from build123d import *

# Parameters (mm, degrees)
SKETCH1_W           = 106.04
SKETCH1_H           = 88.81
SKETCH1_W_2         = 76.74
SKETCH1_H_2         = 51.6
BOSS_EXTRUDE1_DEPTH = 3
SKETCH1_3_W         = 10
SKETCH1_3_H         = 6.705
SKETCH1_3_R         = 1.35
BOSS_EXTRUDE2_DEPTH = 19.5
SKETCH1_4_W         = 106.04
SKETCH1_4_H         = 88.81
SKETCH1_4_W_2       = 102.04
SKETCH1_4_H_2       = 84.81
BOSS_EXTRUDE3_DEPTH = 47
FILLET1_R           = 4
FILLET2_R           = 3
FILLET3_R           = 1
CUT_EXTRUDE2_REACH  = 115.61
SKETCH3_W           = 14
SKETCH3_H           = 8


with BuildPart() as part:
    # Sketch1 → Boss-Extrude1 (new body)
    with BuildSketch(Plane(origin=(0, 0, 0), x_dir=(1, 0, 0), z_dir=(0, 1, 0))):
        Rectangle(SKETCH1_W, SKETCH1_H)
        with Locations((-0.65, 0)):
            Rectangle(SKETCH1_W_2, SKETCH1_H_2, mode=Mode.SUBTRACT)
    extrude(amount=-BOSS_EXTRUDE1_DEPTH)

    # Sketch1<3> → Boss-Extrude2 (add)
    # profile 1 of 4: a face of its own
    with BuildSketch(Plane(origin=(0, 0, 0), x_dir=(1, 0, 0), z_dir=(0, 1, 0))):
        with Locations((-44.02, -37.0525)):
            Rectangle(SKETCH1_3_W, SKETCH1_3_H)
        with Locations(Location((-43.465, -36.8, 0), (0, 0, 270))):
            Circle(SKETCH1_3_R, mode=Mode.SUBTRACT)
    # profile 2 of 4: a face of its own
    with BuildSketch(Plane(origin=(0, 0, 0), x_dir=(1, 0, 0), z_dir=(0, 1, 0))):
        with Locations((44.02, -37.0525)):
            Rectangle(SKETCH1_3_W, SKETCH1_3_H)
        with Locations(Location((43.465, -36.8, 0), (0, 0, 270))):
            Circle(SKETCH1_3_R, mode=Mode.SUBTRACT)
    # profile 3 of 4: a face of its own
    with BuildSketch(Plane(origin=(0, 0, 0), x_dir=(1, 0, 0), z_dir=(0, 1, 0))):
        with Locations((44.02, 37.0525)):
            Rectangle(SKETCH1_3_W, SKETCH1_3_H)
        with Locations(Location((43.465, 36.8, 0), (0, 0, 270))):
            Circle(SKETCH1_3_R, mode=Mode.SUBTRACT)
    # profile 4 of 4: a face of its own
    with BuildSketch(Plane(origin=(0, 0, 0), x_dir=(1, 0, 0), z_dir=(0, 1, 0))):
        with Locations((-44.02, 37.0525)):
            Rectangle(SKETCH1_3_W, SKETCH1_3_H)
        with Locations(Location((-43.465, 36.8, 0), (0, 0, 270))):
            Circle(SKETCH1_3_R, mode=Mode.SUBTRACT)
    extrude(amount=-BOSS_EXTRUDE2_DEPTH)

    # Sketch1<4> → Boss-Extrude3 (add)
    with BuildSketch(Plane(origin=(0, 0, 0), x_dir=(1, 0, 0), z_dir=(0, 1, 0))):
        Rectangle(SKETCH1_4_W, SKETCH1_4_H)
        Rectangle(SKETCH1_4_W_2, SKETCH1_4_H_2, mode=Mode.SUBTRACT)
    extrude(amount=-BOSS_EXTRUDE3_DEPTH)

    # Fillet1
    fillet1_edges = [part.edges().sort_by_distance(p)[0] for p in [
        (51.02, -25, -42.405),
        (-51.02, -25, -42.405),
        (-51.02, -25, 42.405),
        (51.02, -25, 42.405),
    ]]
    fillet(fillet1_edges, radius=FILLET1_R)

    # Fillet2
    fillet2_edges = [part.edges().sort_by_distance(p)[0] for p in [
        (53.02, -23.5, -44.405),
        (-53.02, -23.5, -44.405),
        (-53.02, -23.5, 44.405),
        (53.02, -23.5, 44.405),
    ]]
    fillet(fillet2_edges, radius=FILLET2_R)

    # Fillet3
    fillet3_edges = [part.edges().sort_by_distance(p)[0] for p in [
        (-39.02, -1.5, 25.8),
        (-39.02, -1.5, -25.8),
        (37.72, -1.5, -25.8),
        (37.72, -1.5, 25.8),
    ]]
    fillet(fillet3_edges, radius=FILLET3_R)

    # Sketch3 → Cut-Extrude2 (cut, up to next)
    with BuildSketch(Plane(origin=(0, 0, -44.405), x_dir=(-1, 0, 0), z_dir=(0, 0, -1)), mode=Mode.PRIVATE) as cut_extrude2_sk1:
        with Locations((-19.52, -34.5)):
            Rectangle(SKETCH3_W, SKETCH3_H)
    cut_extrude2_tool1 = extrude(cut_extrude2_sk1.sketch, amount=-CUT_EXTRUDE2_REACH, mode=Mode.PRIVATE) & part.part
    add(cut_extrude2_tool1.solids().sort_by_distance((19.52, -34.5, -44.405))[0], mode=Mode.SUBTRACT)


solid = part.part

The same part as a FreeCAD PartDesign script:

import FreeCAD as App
import Part
import Sketcher

V = App.Vector
Q = App.Units.Quantity


def edges_at(feature, points):
    """Names of the edges that pass closest to the given points."""
    edges = feature.Shape.Edges
    near = lambda p: min(range(len(edges)), key=lambda i: edges[i].distToShape(Part.Vertex(*p))[0])
    return sorted({f"Edge{near(p) + 1}" for p in points})

doc = App.newDocument("Part")
body = doc.addObject("PartDesign::Body", "Body")

# Sketch on XZ plane
sketch1 = body.newObject("Sketcher::SketchObject", "Sketch")
sketch1.AttachmentSupport = (doc.getObject("XZ_Plane"), [""])
sketch1.MapMode = "FlatFace"
sketch1.addGeometry([
    Part.LineSegment(V(-53.02, -44.405, 0), V(-53.02, 44.405, 0)),  # 0
    Part.LineSegment(V(-53.02, 44.405, 0), V(53.02, 44.405, 0)),  # 1
    Part.LineSegment(V(53.02, 44.405, 0), V(53.02, -44.405, 0)),  # 2
    Part.LineSegment(V(53.02, -44.405, 0), V(-53.02, -44.405, 0)),  # 3
    Part.LineSegment(V(37.72, 25.8, 0), V(-39.02, 25.8, 0)),  # 4
    Part.LineSegment(V(-39.02, 25.8, 0), V(-39.02, -25.8, 0)),  # 5
    Part.LineSegment(V(-39.02, -25.8, 0), V(37.72, -25.8, 0)),  # 6
    Part.LineSegment(V(37.72, -25.8, 0), V(37.72, 25.8, 0)),  # 7
], False)
sketch1.addConstraint([
    Sketcher.Constraint("Coincident", 0, 2, 1, 1),
    Sketcher.Constraint("Coincident", 1, 2, 2, 1),
    Sketcher.Constraint("Coincident", 2, 2, 3, 1),
    Sketcher.Constraint("Coincident", 3, 2, 0, 1),
    Sketcher.Constraint("Coincident", 4, 2, 5, 1),
    Sketcher.Constraint("Coincident", 5, 2, 6, 1),
    Sketcher.Constraint("Coincident", 6, 2, 7, 1),
    Sketcher.Constraint("Coincident", 7, 2, 4, 1),
    Sketcher.Constraint("Vertical", 0),
    Sketcher.Constraint("Horizontal", 1),
    Sketcher.Constraint("Vertical", 2),
    Sketcher.Constraint("Horizontal", 3),
    Sketcher.Constraint("Horizontal", 4),
    Sketcher.Constraint("Vertical", 5),
    Sketcher.Constraint("Horizontal", 6),
    Sketcher.Constraint("Vertical", 7),
    Sketcher.Constraint("Symmetric", 0, 2, 2, 2, -1, 1),
    Sketcher.Constraint("DistanceY", 5, 2, 5, 1, Q("51.6 mm")),
    Sketcher.Constraint("DistanceX", 0, 2, 4, 2, Q("14 mm")),
    Sketcher.Constraint("DistanceX", 1, 1, 1, 2, Q("106.04 mm")),
    Sketcher.Constraint("DistanceX", 4, 2, 4, 1, Q("76.74 mm")),
    Sketcher.Constraint("DistanceY", 0, 1, 0, 2, Q("88.81 mm")),
    Sketcher.Constraint("DistanceY", -1, 1, 4, 2, Q("25.8 mm")),
])
pad1 = body.newObject("PartDesign::Pad", "Pad")
pad1.Profile = sketch1
pad1.Length = 3

# Sketch on XZ plane
sketch2 = body.newObject("Sketcher::SketchObject", "Sketch001")
sketch2.AttachmentSupport = (doc.getObject("XZ_Plane"), [""])
sketch2.MapMode = "FlatFace"
sketch2.addGeometry([
    Part.LineSegment(V(-49.02, 33.7, 0), V(-49.02, 40.405, 0)),  # 0
    Part.LineSegment(V(-49.02, 40.405, 0), V(-39.02, 40.405, 0)),  # 1
    Part.LineSegment(V(-39.02, 40.405, 0), V(-39.02, 33.7, 0)),  # 2
    Part.LineSegment(V(-39.02, 33.7, 0), V(-49.02, 33.7, 0)),  # 3
    Part.Circle(V(-43.465, 36.8, 0), V(0, 0, 1), 1.35),  # 4
    Part.LineSegment(V(39.02, 33.7, 0), V(39.02, 40.405, 0)),  # 5
    Part.LineSegment(V(39.02, 40.405, 0), V(49.02, 40.405, 0)),  # 6
    Part.LineSegment(V(49.02, 40.405, 0), V(49.02, 33.7, 0)),  # 7
    Part.LineSegment(V(49.02, 33.7, 0), V(39.02, 33.7, 0)),  # 8
    Part.Circle(V(43.465, 36.8, 0), V(0, 0, 1), 1.35),  # 9
    Part.LineSegment(V(39.02, -40.405, 0), V(39.02, -33.7, 0)),  # 10
    Part.LineSegment(V(39.02, -33.7, 0), V(49.02, -33.7, 0)),  # 11
    Part.LineSegment(V(49.02, -33.7, 0), V(49.02, -40.405, 0)),  # 12
    Part.LineSegment(V(49.02, -40.405, 0), V(39.02, -40.405, 0)),  # 13
    Part.Circle(V(43.465, -36.8, 0), V(0, 0, 1), 1.35),  # 14
    Part.LineSegment(V(-49.02, -40.405, 0), V(-49.02, -33.7, 0)),  # 15
    Part.LineSegment(V(-49.02, -33.7, 0), V(-39.02, -33.7, 0)),  # 16
    Part.LineSegment(V(-39.02, -33.7, 0), V(-39.02, -40.405, 0)),  # 17
    Part.LineSegment(V(-39.02, -40.405, 0), V(-49.02, -40.405, 0)),  # 18
    Part.Circle(V(-43.465, -36.8, 0), V(0, 0, 1), 1.35),  # 19
], False)
sketch2.addConstraint([
    Sketcher.Constraint("Coincident", 0, 2, 1, 1),
    Sketcher.Constraint("Coincident", 1, 2, 2, 1),
    Sketcher.Constraint("Coincident", 2, 2, 3, 1),
    Sketcher.Constraint("Coincident", 3, 2, 0, 1),
    Sketcher.Constraint("Coincident", 5, 2, 6, 1),
    Sketcher.Constraint("Coincident", 6, 2, 7, 1),
    Sketcher.Constraint("Coincident", 7, 2, 8, 1),
    Sketcher.Constraint("Coincident", 8, 2, 5, 1),
    Sketcher.Constraint("Coincident", 10, 2, 11, 1),
    Sketcher.Constraint("Coincident", 11, 2, 12, 1),
    Sketcher.Constraint("Coincident", 12, 2, 13, 1),
    Sketcher.Constraint("Coincident", 13, 2, 10, 1),
    Sketcher.Constraint("Coincident", 15, 2, 16, 1),
    Sketcher.Constraint("Coincident", 16, 2, 17, 1),
    Sketcher.Constraint("Coincident", 17, 2, 18, 1),
    Sketcher.Constraint("Coincident", 18, 2, 15, 1),
    Sketcher.Constraint("Vertical", 0),
    Sketcher.Constraint("Horizontal", 1),
    Sketcher.Constraint("Vertical", 2),
    Sketcher.Constraint("Horizontal", 3),
    Sketcher.Constraint("Vertical", 5),
    Sketcher.Constraint("Horizontal", 6),
    Sketcher.Constraint("Vertical", 7),
    Sketcher.Constraint("Horizontal", 8),
    Sketcher.Constraint("Vertical", 10),
    Sketcher.Constraint("Horizontal", 11),
    Sketcher.Constraint("Vertical", 12),
    Sketcher.Constraint("Horizontal", 13),
    Sketcher.Constraint("Vertical", 15),
    Sketcher.Constraint("Horizontal", 16),
    Sketcher.Constraint("Vertical", 17),
    Sketcher.Constraint("Horizontal", 18),
    Sketcher.Constraint("Equal", 4, 9),
    Sketcher.Constraint("Equal", 9, 14),
    Sketcher.Constraint("Equal", 14, 19),
    Sketcher.Constraint("Symmetric", 4, 3, 14, 3, -1, 1),
    Sketcher.Constraint("Symmetric", 9, 3, 19, 3, -1, 1),
    Sketcher.Constraint("Symmetric", 2, 2, 10, 2, -1, 1),
    Sketcher.Constraint("Symmetric", 0, 2, 12, 2, -1, 1),
    Sketcher.Constraint("Symmetric", 7, 2, 15, 2, -1, 1),
    Sketcher.Constraint("Symmetric", 5, 2, 17, 2, -1, 1),
    Sketcher.Constraint("Symmetric", 4, 3, 9, 3, -2),
    Sketcher.Constraint("Symmetric", 1, 2, 5, 2, -2),
    Sketcher.Constraint("Symmetric", 3, 2, 7, 2, -2),
    Sketcher.Constraint("Diameter", 4, Q("2.7 mm")),
    Sketcher.Constraint("DistanceX", 1, 1, 1, 2, Q("10 mm")),
    Sketcher.Constraint("DistanceY", -1, 1, 4, 3, Q("36.8 mm")),
    Sketcher.Constraint("DistanceY", -1, 1, 2, 2, Q("33.7 mm")),
    Sketcher.Constraint("DistanceY", 0, 1, 0, 2, Q("6.705 mm")),
    Sketcher.Constraint("DistanceX", 0, 2, -1, 1, Q("49.02 mm")),
    Sketcher.Constraint("DistanceX", 4, 3, 9, 3, Q("86.93 mm")),
])
pad2 = body.newObject("PartDesign::Pad", "Pad001")
pad2.Profile = sketch2
pad2.Length = 19.5

# Sketch on XZ plane
sketch3 = body.newObject("Sketcher::SketchObject", "Sketch002")
sketch3.AttachmentSupport = (doc.getObject("XZ_Plane"), [""])
sketch3.MapMode = "FlatFace"
sketch3.addGeometry([
    Part.LineSegment(V(-53.02, -44.405, 0), V(-53.02, 44.405, 0)),  # 0
    Part.LineSegment(V(-53.02, 44.405, 0), V(53.02, 44.405, 0)),  # 1
    Part.LineSegment(V(53.02, 44.405, 0), V(53.02, -44.405, 0)),  # 2
    Part.LineSegment(V(53.02, -44.405, 0), V(-53.02, -44.405, 0)),  # 3
    Part.LineSegment(V(51.02, 42.405, 0), V(-51.02, 42.405, 0)),  # 4
    Part.LineSegment(V(-51.02, 42.405, 0), V(-51.02, -42.405, 0)),  # 5
    Part.LineSegment(V(-51.02, -42.405, 0), V(51.02, -42.405, 0)),  # 6
    Part.LineSegment(V(51.02, -42.405, 0), V(51.02, 42.405, 0)),  # 7
], False)
sketch3.addConstraint([
    Sketcher.Constraint("Coincident", 0, 2, 1, 1),
    Sketcher.Constraint("Coincident", 1, 2, 2, 1),
    Sketcher.Constraint("Coincident", 2, 2, 3, 1),
    Sketcher.Constraint("Coincident", 3, 2, 0, 1),
    Sketcher.Constraint("Coincident", 4, 2, 5, 1),
    Sketcher.Constraint("Coincident", 5, 2, 6, 1),
    Sketcher.Constraint("Coincident", 6, 2, 7, 1),
    Sketcher.Constraint("Coincident", 7, 2, 4, 1),
    Sketcher.Constraint("Vertical", 0),
    Sketcher.Constraint("Horizontal", 1),
    Sketcher.Constraint("Vertical", 2),
    Sketcher.Constraint("Horizontal", 3),
    Sketcher.Constraint("Horizontal", 4),
    Sketcher.Constraint("Vertical", 5),
    Sketcher.Constraint("Horizontal", 6),
    Sketcher.Constraint("Vertical", 7),
    Sketcher.Constraint("Symmetric", 0, 2, 2, 2, -1, 1),
    Sketcher.Constraint("Symmetric", 4, 2, 6, 2, -1, 1),
    Sketcher.Constraint("DistanceX", 0, 2, 4, 2, Q("2 mm")),
    Sketcher.Constraint("DistanceY", 4, 2, 0, 2, Q("2 mm")),
    Sketcher.Constraint("DistanceX", 1, 1, 1, 2, Q("106.04 mm")),
    Sketcher.Constraint("DistanceY", 0, 1, 0, 2, Q("88.81 mm")),
])
pad3 = body.newObject("PartDesign::Pad", "Pad002")
pad3.Profile = sketch3
pad3.Length = 47
doc.recompute()

fillet = body.newObject("PartDesign::Fillet", "Fillet")
fillet.Base = (pad3, edges_at(pad3, [
    (51.02, -25, -42.405),
    (-51.02, -25, -42.405),
    (-51.02, -25, 42.405),
    (51.02, -25, 42.405),
]))
fillet.Radius = 4
doc.recompute()

fillet2 = body.newObject("PartDesign::Fillet", "Fillet001")
fillet2.Base = (fillet, edges_at(fillet, [
    (53.02, -23.5, -44.405),
    (-53.02, -23.5, -44.405),
    (-53.02, -23.5, 44.405),
    (53.02, -23.5, 44.405),
]))
fillet2.Radius = 3
doc.recompute()

fillet3 = body.newObject("PartDesign::Fillet", "Fillet002")
fillet3.Base = (fillet2, edges_at(fillet2, [
    (-39.02, -1.5, 25.8),
    (-39.02, -1.5, -25.8),
    (37.72, -1.5, -25.8),
    (37.72, -1.5, 25.8),
]))
fillet3.Radius = 1

# Sketch on XY plane
sketch4 = body.newObject("Sketcher::SketchObject", "Sketch003")
sketch4.AttachmentSupport = (doc.getObject("XY_Plane"), [""])
sketch4.MapMode = "FlatFace"
sketch4.AttachmentOffset = App.Placement(V(0, 0, -44.405), App.Rotation())
sketch4.addGeometry([
    Part.LineSegment(V(26.52, -30.5, 0), V(26.52, -38.5, 0)),
    Part.LineSegment(V(26.52, -38.5, 0), V(12.52, -38.5, 0)),
    Part.LineSegment(V(12.52, -38.5, 0), V(12.52, -30.5, 0)),
    Part.LineSegment(V(12.52, -30.5, 0), V(26.52, -30.5, 0)),
], False)
sketch4.addConstraint([
    Sketcher.Constraint("Coincident", 0, 2, 1, 1),
    Sketcher.Constraint("Coincident", 1, 2, 2, 1),
    Sketcher.Constraint("Coincident", 2, 2, 3, 1),
    Sketcher.Constraint("Coincident", 3, 2, 0, 1),
    Sketcher.Constraint("Vertical", 0),
    Sketcher.Constraint("Horizontal", 1),
    Sketcher.Constraint("Vertical", 2),
    Sketcher.Constraint("Horizontal", 3),
    Sketcher.Constraint("DistanceX", 1, 2, 1, 1, Q("14 mm")),
    Sketcher.Constraint("DistanceY", 0, 2, 0, 1, Q("8 mm")),
    Sketcher.Constraint("DistanceY", 0, 2, -1, 1, Q("38.5 mm")),
    Sketcher.Constraint("DistanceX", -1, 1, 0, 2, Q("26.52 mm")),
])
pocket1 = body.newObject("PartDesign::Pocket", "Pocket")
pocket1.Profile = sketch4
pocket1.Type = "UpToFirst"
pocket1.Reversed = True

doc.recompute()
